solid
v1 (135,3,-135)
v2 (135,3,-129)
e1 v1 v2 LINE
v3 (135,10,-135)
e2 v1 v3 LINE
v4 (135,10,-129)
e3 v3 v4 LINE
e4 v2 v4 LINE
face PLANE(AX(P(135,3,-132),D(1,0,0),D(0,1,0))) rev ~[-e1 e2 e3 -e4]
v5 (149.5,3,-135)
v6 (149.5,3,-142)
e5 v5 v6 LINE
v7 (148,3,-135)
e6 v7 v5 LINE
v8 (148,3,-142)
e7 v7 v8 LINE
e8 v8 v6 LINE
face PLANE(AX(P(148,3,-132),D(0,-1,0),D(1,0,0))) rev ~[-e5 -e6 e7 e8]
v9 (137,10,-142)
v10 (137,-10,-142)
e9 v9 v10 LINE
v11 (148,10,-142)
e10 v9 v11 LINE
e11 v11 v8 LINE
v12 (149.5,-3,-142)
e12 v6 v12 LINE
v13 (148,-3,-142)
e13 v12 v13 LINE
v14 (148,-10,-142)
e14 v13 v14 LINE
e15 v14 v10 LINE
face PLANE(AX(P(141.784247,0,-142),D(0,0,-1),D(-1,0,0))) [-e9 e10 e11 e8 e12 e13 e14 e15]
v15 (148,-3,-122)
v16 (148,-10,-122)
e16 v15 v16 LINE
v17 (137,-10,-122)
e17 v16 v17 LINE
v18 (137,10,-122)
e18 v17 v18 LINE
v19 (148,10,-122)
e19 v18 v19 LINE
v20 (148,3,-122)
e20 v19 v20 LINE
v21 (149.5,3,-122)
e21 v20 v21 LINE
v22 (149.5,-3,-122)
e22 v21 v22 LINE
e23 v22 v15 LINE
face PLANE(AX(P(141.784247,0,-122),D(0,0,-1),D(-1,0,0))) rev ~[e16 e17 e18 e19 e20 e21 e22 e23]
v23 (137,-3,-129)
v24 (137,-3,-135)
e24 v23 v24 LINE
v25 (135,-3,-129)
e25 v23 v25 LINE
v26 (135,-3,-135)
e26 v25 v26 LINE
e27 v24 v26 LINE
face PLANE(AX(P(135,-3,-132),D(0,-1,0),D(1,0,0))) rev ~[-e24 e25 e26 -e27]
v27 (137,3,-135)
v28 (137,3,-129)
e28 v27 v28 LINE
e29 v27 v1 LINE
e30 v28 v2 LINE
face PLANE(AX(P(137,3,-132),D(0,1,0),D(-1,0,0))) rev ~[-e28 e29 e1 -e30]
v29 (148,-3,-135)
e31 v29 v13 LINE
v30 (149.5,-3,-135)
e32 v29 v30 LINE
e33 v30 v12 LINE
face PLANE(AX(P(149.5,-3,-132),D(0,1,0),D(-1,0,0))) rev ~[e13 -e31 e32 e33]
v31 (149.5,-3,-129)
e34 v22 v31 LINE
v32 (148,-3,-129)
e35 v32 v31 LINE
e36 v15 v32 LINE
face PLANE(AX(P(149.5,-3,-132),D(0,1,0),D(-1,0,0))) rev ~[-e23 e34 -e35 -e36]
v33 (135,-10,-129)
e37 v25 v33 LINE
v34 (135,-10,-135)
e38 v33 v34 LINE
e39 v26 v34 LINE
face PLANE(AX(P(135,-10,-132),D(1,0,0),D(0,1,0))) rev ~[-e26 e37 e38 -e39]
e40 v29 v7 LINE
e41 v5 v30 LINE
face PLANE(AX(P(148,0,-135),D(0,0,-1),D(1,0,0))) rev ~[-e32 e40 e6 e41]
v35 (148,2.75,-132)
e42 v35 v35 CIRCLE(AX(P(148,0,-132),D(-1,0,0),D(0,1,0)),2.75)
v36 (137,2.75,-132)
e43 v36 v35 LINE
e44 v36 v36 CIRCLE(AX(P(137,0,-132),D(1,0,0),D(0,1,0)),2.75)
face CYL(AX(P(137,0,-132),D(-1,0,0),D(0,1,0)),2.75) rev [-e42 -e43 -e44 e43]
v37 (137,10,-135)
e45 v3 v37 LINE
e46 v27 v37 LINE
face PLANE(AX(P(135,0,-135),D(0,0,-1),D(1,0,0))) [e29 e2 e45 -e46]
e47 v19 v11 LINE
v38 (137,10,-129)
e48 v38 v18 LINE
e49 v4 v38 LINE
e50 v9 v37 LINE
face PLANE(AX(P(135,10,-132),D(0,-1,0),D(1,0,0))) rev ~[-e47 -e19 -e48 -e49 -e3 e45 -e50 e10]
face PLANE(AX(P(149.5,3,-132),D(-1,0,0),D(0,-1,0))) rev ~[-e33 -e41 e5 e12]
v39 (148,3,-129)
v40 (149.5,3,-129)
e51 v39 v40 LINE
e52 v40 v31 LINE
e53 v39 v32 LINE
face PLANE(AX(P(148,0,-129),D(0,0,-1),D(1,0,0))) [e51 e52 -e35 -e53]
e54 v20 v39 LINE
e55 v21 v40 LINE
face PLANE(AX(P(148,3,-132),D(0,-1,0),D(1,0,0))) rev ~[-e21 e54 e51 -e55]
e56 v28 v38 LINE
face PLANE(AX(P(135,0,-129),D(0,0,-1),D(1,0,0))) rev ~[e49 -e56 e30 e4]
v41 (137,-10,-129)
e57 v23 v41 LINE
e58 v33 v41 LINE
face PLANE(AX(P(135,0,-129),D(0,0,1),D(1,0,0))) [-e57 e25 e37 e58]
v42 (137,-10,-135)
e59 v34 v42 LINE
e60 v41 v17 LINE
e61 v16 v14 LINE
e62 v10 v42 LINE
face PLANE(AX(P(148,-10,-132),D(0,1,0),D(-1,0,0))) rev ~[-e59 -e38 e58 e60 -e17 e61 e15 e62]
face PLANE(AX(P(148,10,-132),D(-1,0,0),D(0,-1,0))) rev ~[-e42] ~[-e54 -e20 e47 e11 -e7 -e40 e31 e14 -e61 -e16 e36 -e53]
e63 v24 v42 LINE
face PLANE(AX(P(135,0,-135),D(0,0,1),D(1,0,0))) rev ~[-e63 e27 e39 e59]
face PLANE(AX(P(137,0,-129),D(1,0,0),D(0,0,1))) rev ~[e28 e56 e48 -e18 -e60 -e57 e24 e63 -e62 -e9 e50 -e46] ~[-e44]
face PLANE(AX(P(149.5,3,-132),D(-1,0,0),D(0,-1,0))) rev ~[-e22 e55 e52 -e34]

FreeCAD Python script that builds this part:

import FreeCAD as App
import Part
import Sketcher

doc = App.newDocument("Part")
body = doc.addObject("PartDesign::Body", "Body")

# Sketch on XY plane
sketch1 = body.newObject("Sketcher::SketchObject", "Sketch")
sketch1.AttachmentSupport = (doc.getObject("XY_Plane"), [""])
sketch1.MapMode = "FlatFace"
sketch1.addGeometry([
    Part.LineSegment(App.Vector(11, 10, 0), App.Vector(-2, 10, 0)),  # 0
    Part.LineSegment(App.Vector(-2, 10, 0), App.Vector(-2, 3, 0)),  # 1
    Part.LineSegment(App.Vector(-2, 3, 0), App.Vector(0, 3, 0)),  # 2
    Part.LineSegment(App.Vector(0, 3, 0), App.Vector(0, -3, 0)),  # 3
    Part.LineSegment(App.Vector(0, -3, 0), App.Vector(-2, -3, 0)),  # 4
    Part.LineSegment(App.Vector(-2, -3, 0), App.Vector(-2, -10, 0)),  # 5
    Part.LineSegment(App.Vector(-2, -10, 0), App.Vector(11, -10, 0)),  # 6
    Part.LineSegment(App.Vector(11, -10, 0), App.Vector(11, -3, 0)),  # 7
    Part.LineSegment(App.Vector(11, -3, 0), App.Vector(12.5, -3, 0)),  # 8
    Part.LineSegment(App.Vector(12.5, -3, 0), App.Vector(12.5, 3, 0)),  # 9
    Part.LineSegment(App.Vector(12.5, 3, 0), App.Vector(11, 3, 0)),  # 10
    Part.LineSegment(App.Vector(11, 3, 0), App.Vector(11, 10, 0)),  # 11
], False)
sketch1.addConstraint([
    Sketcher.Constraint("Coincident", 0, 2, 1, 1),
    Sketcher.Constraint("Coincident", 1, 2, 2, 1),
    Sketcher.Constraint("Coincident", 2, 2, 3, 1),
    Sketcher.Constraint("Coincident", 3, 2, 4, 1),
    Sketcher.Constraint("Coincident", 4, 2, 5, 1),
    Sketcher.Constraint("Coincident", 5, 2, 6, 1),
    Sketcher.Constraint("Coincident", 6, 2, 7, 1),
    Sketcher.Constraint("Coincident", 7, 2, 8, 1),
    Sketcher.Constraint("Coincident", 8, 2, 9, 1),
    Sketcher.Constraint("Coincident", 9, 2, 10, 1),
    Sketcher.Constraint("Coincident", 10, 2, 11, 1),
    Sketcher.Constraint("Coincident", 11, 2, 0, 1),
    Sketcher.Constraint("Horizontal", 0),
    Sketcher.Constraint("Vertical", 1),
    Sketcher.Constraint("Horizontal", 2),
    Sketcher.Constraint("Vertical", 3),
    Sketcher.Constraint("Horizontal", 4),
    Sketcher.Constraint("Vertical", 5),
    Sketcher.Constraint("Horizontal", 6),
    Sketcher.Constraint("Vertical", 7),
    Sketcher.Constraint("Horizontal", 8),
    Sketcher.Constraint("Vertical", 9),
    Sketcher.Constraint("Horizontal", 10),
    Sketcher.Constraint("Vertical", 11),
    Sketcher.Constraint("Symmetric", 2, 2, 3, 2, -1, 1),
    Sketcher.Constraint("Symmetric", 0, 2, 5, 2, -1),
    Sketcher.Constraint("Symmetric", 7, 2, 10, 2, -1),
    Sketcher.Constraint("Horizontal", 4, 2, 7, 2),
    Sketcher.Constraint("DistanceX", 0, 2, 0, 1, 13.0),
    Sketcher.Constraint("DistanceX", 2, 1, 2, 2, 2.0),
    Sketcher.Constraint("DistanceY", 1, 2, 1, 1, 7.0),
    Sketcher.Constraint("DistanceY", 3, 2, 3, 1, 6.0),
    Sketcher.Constraint("DistanceX", 8, 1, 8, 2, 1.5),
])
pad1 = body.newObject("PartDesign::Pad", "Pad")
pad1.Profile = sketch1
pad1.Length = 20
pad1.Midplane = True

# Sketch on XZ plane
sketch2 = body.newObject("Sketcher::SketchObject", "Sketch001")
sketch2.AttachmentSupport = (doc.getObject("XZ_Plane"), [""])
sketch2.MapMode = "FlatFace"
sketch2.addGeometry([
    Part.LineSegment(App.Vector(-2, -3, 0), App.Vector(-2, -10, 0)),  # 0
    Part.LineSegment(App.Vector(-2, -10, 0), App.Vector(0, -10, 0)),  # 1
    Part.LineSegment(App.Vector(0, -10, 0), App.Vector(0, -3, 0)),  # 2
    Part.LineSegment(App.Vector(0, -3, 0), App.Vector(-2, -3, 0)),  # 3
    Part.LineSegment(App.Vector(-2, 10, 0), App.Vector(-2, 3, 0)),  # 4
    Part.LineSegment(App.Vector(-2, 3, 0), App.Vector(0, 3, 0)),  # 5
    Part.LineSegment(App.Vector(0, 3, 0), App.Vector(0, 10, 0)),  # 6
    Part.LineSegment(App.Vector(0, 10, 0), App.Vector(-2, 10, 0)),  # 7
    Part.LineSegment(App.Vector(11, 3, 0), App.Vector(11, -3, 0)),  # 8
    Part.LineSegment(App.Vector(11, -3, 0), App.Vector(12.5, -3, 0)),  # 9
    Part.LineSegment(App.Vector(12.5, -3, 0), App.Vector(12.5, 3, 0)),  # 10
    Part.LineSegment(App.Vector(12.5, 3, 0), App.Vector(11, 3, 0)),  # 11
], False)
sketch2.addConstraint([
    Sketcher.Constraint("Coincident", 0, 2, 1, 1),
    Sketcher.Constraint("Coincident", 1, 2, 2, 1),
    Sketcher.Constraint("Coincident", 2, 2, 3, 1),
    Sketcher.Constraint("Coincident", 3, 2, 0, 1),
    Sketcher.Constraint("Coincident", 4, 2, 5, 1),
    Sketcher.Constraint("Coincident", 5, 2, 6, 1),
    Sketcher.Constraint("Coincident", 6, 2, 7, 1),
    Sketcher.Constraint("Coincident", 7, 2, 4, 1),
    Sketcher.Constraint("Coincident", 8, 2, 9, 1),
    Sketcher.Constraint("Coincident", 9, 2, 10, 1),
    Sketcher.Constraint("Coincident", 10, 2, 11, 1),
    Sketcher.Constraint("Coincident", 11, 2, 8, 1),
    Sketcher.Constraint("Vertical", 0),
    Sketcher.Constraint("Horizontal", 1),
    Sketcher.Constraint("Vertical", 2),
    Sketcher.Constraint("Horizontal", 3),
    Sketcher.Constraint("Vertical", 4),
    Sketcher.Constraint("Horizontal", 5),
    Sketcher.Constraint("Vertical", 6),
    Sketcher.Constraint("Horizontal", 7),
    Sketcher.Constraint("Vertical", 8),
    Sketcher.Constraint("Horizontal", 9),
    Sketcher.Constraint("Vertical", 10),
    Sketcher.Constraint("Horizontal", 11),
    Sketcher.Constraint("Symmetric", 2, 2, 5, 2, -1, 1),
    Sketcher.Constraint("Symmetric", 1, 2, 6, 2, -1),
    Sketcher.Constraint("Horizontal", 3, 2, 8, 2),
    Sketcher.Constraint("Horizontal", 5, 2, 10, 2),
    Sketcher.Constraint("Vertical", 3, 2, 4, 2),
    Sketcher.Constraint("DistanceX", 1, 1, 1, 2, 2.0),
    Sketcher.Constraint("DistanceY", 0, 2, 0, 1, 7.0),
    Sketcher.Constraint("DistanceY", 8, 2, 8, 1, 6.0),
    Sketcher.Constraint("DistanceX", 9, 1, 9, 2, 1.5),
    Sketcher.Constraint("DistanceX", -1, 1, 8, 2, 11.0),
])
pocket1 = body.newObject("PartDesign::Pocket", "Pocket")
pocket1.Profile = sketch2
pocket1.Type = "ThroughAll"
pocket1.Midplane = True

# Sketch on YZ plane
sketch3 = body.newObject("Sketcher::SketchObject", "Sketch002")
sketch3.AttachmentSupport = (doc.getObject("YZ_Plane"), [""])
sketch3.MapMode = "FlatFace"
sketch3.addGeometry(Part.Circle(App.Vector(0, 0, 0), App.Vector(0, 0, 1), 2.8), False)
sketch3.addConstraint([
    Sketcher.Constraint("Coincident", 0, 3, -1, 1),
    Sketcher.Constraint("Diameter", 0, 5.5),
])
pocket2 = body.newObject("PartDesign::Pocket", "Pocket001")
pocket2.Profile = sketch3
pocket2.Type = "ThroughAll"
pocket2.Midplane = True
body2 = doc.addObject("PartDesign::Body", "Body001")
doc.recompute()

body.Placement = App.Placement(App.Vector(137, 0, -132), App.Rotation(App.Vector(0, 0, 1), 0))
boolean = body2.newObject("PartDesign::Boolean", "Boolean")
boolean.Type = "Fuse"
boolean.addObjects([body])

doc.recompute()
